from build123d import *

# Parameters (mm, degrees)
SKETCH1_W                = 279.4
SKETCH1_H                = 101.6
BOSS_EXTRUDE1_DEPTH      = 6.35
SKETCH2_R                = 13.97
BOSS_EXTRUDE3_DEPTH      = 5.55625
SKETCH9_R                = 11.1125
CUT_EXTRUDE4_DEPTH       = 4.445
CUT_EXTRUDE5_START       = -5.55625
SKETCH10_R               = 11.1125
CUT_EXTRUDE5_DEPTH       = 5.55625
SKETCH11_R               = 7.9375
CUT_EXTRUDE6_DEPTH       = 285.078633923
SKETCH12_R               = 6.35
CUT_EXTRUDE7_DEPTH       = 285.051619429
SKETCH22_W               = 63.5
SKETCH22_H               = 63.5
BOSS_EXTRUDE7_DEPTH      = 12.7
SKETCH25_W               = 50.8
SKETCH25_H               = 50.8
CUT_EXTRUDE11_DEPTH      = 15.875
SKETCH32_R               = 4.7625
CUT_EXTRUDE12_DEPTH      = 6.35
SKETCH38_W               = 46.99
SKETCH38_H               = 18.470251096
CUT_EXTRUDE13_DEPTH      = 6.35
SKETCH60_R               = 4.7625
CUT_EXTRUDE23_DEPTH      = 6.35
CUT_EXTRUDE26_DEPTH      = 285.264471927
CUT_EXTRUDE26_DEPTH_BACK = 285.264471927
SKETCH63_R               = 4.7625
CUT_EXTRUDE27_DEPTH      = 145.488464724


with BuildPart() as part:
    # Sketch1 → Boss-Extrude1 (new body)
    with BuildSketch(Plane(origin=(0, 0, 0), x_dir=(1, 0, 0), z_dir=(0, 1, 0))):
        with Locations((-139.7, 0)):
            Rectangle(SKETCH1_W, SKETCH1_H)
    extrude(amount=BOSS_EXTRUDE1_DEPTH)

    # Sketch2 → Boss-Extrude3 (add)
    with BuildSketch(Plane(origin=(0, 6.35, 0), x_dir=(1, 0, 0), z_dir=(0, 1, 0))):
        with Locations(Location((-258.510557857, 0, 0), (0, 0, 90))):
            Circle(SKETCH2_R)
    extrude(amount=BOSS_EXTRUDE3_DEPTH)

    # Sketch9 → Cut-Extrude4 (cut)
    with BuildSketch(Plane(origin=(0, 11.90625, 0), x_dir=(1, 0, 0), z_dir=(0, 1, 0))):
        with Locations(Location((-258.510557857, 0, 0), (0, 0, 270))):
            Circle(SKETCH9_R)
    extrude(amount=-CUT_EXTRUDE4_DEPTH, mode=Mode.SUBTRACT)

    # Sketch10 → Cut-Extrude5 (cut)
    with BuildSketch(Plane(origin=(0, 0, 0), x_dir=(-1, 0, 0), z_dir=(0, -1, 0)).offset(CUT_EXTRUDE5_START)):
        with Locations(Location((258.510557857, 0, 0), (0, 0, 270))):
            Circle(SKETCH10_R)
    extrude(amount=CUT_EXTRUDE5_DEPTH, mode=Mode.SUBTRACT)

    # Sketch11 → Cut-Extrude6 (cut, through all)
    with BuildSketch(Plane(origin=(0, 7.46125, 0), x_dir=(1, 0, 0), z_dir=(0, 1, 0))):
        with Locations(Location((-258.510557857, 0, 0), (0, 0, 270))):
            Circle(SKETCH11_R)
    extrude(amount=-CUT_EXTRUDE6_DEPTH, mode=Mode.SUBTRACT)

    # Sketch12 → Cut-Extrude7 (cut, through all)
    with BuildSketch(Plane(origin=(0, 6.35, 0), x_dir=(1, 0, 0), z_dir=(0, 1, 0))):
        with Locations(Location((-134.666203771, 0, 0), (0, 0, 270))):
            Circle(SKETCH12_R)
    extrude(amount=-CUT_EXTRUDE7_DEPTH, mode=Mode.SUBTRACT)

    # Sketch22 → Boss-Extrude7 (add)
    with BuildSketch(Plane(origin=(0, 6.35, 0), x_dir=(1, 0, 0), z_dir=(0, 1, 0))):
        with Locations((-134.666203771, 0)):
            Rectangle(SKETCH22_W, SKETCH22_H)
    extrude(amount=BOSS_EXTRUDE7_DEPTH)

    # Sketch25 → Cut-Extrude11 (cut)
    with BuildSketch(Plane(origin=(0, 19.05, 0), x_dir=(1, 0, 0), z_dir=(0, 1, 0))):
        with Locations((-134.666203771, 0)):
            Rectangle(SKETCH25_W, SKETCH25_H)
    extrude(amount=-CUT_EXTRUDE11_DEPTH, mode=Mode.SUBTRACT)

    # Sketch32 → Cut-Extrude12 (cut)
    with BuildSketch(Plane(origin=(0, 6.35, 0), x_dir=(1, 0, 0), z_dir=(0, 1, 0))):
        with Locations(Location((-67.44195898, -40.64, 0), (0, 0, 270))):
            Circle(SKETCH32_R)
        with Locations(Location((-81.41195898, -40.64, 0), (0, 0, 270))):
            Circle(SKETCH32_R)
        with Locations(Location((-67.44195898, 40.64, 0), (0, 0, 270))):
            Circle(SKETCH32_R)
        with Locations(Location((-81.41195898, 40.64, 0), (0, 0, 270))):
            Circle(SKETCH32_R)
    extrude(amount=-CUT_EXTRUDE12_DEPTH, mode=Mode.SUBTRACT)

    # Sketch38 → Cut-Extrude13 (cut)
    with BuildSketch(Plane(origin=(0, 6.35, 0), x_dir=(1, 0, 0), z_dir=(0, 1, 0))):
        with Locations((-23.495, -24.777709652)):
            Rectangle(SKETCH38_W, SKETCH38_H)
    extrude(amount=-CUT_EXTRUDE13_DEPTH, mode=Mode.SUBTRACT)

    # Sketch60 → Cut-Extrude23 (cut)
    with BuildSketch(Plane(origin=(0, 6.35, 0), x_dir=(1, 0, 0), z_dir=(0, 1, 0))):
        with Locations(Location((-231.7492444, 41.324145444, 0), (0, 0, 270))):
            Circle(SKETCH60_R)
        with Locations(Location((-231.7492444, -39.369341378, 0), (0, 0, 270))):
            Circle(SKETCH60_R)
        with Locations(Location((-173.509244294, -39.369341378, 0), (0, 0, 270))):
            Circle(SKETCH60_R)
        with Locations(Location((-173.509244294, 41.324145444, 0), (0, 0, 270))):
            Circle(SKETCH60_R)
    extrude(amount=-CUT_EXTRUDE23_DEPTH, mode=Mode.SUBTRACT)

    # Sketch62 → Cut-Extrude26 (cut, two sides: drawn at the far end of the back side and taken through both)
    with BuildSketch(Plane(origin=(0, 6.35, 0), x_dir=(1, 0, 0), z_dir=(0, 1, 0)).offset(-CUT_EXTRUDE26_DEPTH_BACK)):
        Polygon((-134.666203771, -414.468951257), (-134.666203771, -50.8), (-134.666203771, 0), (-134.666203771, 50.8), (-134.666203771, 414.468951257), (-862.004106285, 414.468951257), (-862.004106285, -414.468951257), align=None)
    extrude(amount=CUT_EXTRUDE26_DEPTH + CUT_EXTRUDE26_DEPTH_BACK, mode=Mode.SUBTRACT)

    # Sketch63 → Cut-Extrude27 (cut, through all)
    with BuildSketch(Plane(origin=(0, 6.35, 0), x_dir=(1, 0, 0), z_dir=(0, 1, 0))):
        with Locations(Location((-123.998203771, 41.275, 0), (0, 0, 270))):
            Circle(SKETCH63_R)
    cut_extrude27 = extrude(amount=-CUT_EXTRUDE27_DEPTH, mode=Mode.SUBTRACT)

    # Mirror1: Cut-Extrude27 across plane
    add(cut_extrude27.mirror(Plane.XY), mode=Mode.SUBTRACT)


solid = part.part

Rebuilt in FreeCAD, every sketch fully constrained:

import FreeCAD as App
import Part
import Sketcher
Q = App.Units.Quantity


def add_polygon(sketch, points):
    """Adds a closed chain of lines whose ends are joined by coincident constraints."""
    first, n = sketch.GeometryCount, len(points)
    for a, b in zip(points, points[1:] + points[:1]):
        sketch.addGeometry(Part.LineSegment(App.Vector(*a, 0), App.Vector(*b, 0)), False)
    for i in range(n):
        sketch.addConstraint(Sketcher.Constraint("Coincident", first + i, 2, first + (i + 1) % n, 1))

doc = App.newDocument("Part")
params = doc.addObject("Spreadsheet::Sheet", "Params")
for row, (alias, value) in enumerate([
    ("sketch1_width", "11 in"),
    ("sketch1_height", "4 in"),
    ("pad1_length", "0.25 in"),
    ("sketch2_diameter", "1.1 in"),
    ("pad2_length", "0.21875 in"),
    ("sketch3_diameter", "0.875 in"),
    ("pocket1_length", "0.175 in"),
    ("sketch4_diameter", "0.875 in"),
    ("pocket2_length", "0.21875 in"),
    ("sketch5_diameter", "0.625 in"),
    ("sketch6_diameter", "0.5 in"),
    ("sketch7_width", "2.5 in"),
    ("pad3_length", "0.5 in"),
    ("sketch8_width", "2 in"),
    ("pocket5_length", "0.625 in"),
    ("sketch9_diameter", "0.375 in"),
    ("pocket6_length", "0.25 in"),
    ("sketch10_width", "1.85 in"),
    ("pocket7_length", "0.25 in"),
    ("sketch11_diameter", "0.375 in"),
    ("pocket8_length", "0.25 in"),
    ("sketch13_diameter", "0.375 in"),
], start=1):
    params.set(f"A{row}", alias)
    params.set(f"B{row}", "=" + value)
    params.setAlias(f"B{row}", alias)

body = doc.addObject("PartDesign::Body", "Body")

# Sketch on XZ plane
sketch1 = body.newObject("Sketcher::SketchObject", "Sketch")
sketch1.AttachmentSupport = (doc.getObject("XZ_Plane"), [""])
sketch1.MapMode = "FlatFace"
add_polygon(sketch1, [(-279, -51), (-279, 51), (0, 51), (0, -51)])  # lines 0-3
sketch1.addConstraint(Sketcher.Constraint("Vertical", 0))
sketch1.addConstraint(Sketcher.Constraint("Horizontal", 1))
sketch1.addConstraint(Sketcher.Constraint("Vertical", 2))
sketch1.addConstraint(Sketcher.Constraint("Horizontal", 3))
sketch1.addConstraint(Sketcher.Constraint("Symmetric", 1, 2, 2, 2, -1, 1))
sketch1.addConstraint(Sketcher.Constraint("DistanceX", 1, 1, 1, 2, Q("11 in")))
sketch1.addConstraint(Sketcher.Constraint("DistanceY", 0, 1, 0, 2, Q("4 in")))
sketch1.setExpression("Constraints[9]", "Params.sketch1_width")
sketch1.setExpression("Constraints[10]", "Params.sketch1_height")
pad1 = body.newObject("PartDesign::Pad", "Pad")
pad1.Profile = sketch1
pad1.setExpression("Length", "Params.pad1_length")
pad1.Reversed = True

# Sketch on XZ plane
sketch2 = body.newObject("Sketcher::SketchObject", "Sketch001")
sketch2.AttachmentSupport = (doc.getObject("XZ_Plane"), [""])
sketch2.MapMode = "FlatFace"
sketch2.AttachmentOffset = App.Placement(App.Vector(0, 0, -0.25 * 25.4), App.Rotation())
sketch2.addGeometry(Part.Circle(App.Vector(-259, 0, 0), App.Vector(0, 0, 1), 14), False)
sketch2.addConstraint(Sketcher.Constraint("PointOnObject", 0, 3, -1))
sketch2.addConstraint(Sketcher.Constraint("Diameter", 0, Q("1.1 in")))
sketch2.addConstraint(Sketcher.Constraint("DistanceX", 0, 3, -1, 1, Q("258.510558 mm")))
sketch2.setExpression("Constraints[1]", "Params.sketch2_diameter")
pad2 = body.newObject("PartDesign::Pad", "Pad001")
pad2.Profile = sketch2
pad2.setExpression("Length", "Params.pad2_length")
pad2.Reversed = True

# Sketch on XZ plane
sketch3 = body.newObject("Sketcher::SketchObject", "Sketch002")
sketch3.AttachmentSupport = (doc.getObject("XZ_Plane"), [""])
sketch3.MapMode = "FlatFace"
sketch3.AttachmentOffset = App.Placement(App.Vector(0, 0, -0.46875 * 25.4), App.Rotation())
sketch3.addGeometry(Part.Circle(App.Vector(-259, 0, 0), App.Vector(0, 0, 1), 11), False)
sketch3.addConstraint(Sketcher.Constraint("PointOnObject", 0, 3, -1))
sketch3.addConstraint(Sketcher.Constraint("Diameter", 0, Q("0.875 in")))
sketch3.addConstraint(Sketcher.Constraint("DistanceX", 0, 3, -1, 1, Q("258.510558 mm")))
sketch3.setExpression("Constraints[1]", "Params.sketch3_diameter")
pocket1 = body.newObject("PartDesign::Pocket", "Pocket")
pocket1.Profile = sketch3
pocket1.setExpression("Length", "Params.pocket1_length")
pocket1.Reversed = True

# Sketch on XZ plane
sketch4 = body.newObject("Sketcher::SketchObject", "Sketch003")
sketch4.AttachmentSupport = (doc.getObject("XZ_Plane"), [""])
sketch4.MapMode = "FlatFace"
sketch4.AttachmentOffset = App.Placement(App.Vector(0, 0, -0.21875 * 25.4), App.Rotation())
sketch4.addGeometry(Part.Circle(App.Vector(-259, 0, 0), App.Vector(0, 0, 1), 11), False)
sketch4.addConstraint(Sketcher.Constraint("PointOnObject", 0, 3, -1))
sketch4.addConstraint(Sketcher.Constraint("Diameter", 0, Q("0.875 in")))
sketch4.addConstraint(Sketcher.Constraint("DistanceX", 0, 3, -1, 1, Q("258.510558 mm")))
sketch4.setExpression("Constraints[1]", "Params.sketch4_diameter")
pocket2 = body.newObject("PartDesign::Pocket", "Pocket001")
pocket2.Profile = sketch4
pocket2.setExpression("Length", "Params.pocket2_length")
pocket2.Reversed = True

# Sketch on XZ plane
sketch5 = body.newObject("Sketcher::SketchObject", "Sketch004")
sketch5.AttachmentSupport = (doc.getObject("XZ_Plane"), [""])
sketch5.MapMode = "FlatFace"
sketch5.AttachmentOffset = App.Placement(App.Vector(0, 0, -7.46125), App.Rotation())
sketch5.addGeometry(Part.Circle(App.Vector(-259, 0, 0), App.Vector(0, 0, 1), 8), False)
sketch5.addConstraint(Sketcher.Constraint("PointOnObject", 0, 3, -1))
sketch5.addConstraint(Sketcher.Constraint("Diameter", 0, Q("0.625 in")))
sketch5.addConstraint(Sketcher.Constraint("DistanceX", 0, 3, -1, 1, Q("258.510558 mm")))
sketch5.setExpression("Constraints[1]", "Params.sketch5_diameter")
pocket3 = body.newObject("PartDesign::Pocket", "Pocket002")
pocket3.Profile = sketch5
pocket3.Type = "ThroughAll"
pocket3.Reversed = True

# Sketch on XZ plane
sketch6 = body.newObject("Sketcher::SketchObject", "Sketch005")
sketch6.AttachmentSupport = (doc.getObject("XZ_Plane"), [""])
sketch6.MapMode = "FlatFace"
sketch6.AttachmentOffset = App.Placement(App.Vector(0, 0, -0.25 * 25.4), App.Rotation())
sketch6.addGeometry(Part.Circle(App.Vector(-135, 0, 0), App.Vector(0, 0, 1), 6), False)
sketch6.addConstraint(Sketcher.Constraint("PointOnObject", 0, 3, -1))
sketch6.addConstraint(Sketcher.Constraint("Diameter", 0, Q("0.5 in")))
sketch6.addConstraint(Sketcher.Constraint("DistanceX", 0, 3, -1, 1, Q("134.666204 mm")))
sketch6.setExpression("Constraints[1]", "Params.sketch6_diameter")
pocket4 = body.newObject("PartDesign::Pocket", "Pocket003")
pocket4.Profile = sketch6
pocket4.Type = "ThroughAll"
pocket4.Reversed = True

# Sketch on XZ plane
sketch7 = body.newObject("Sketcher::SketchObject", "Sketch006")
sketch7.AttachmentSupport = (doc.getObject("XZ_Plane"), [""])
sketch7.MapMode = "FlatFace"
sketch7.AttachmentOffset = App.Placement(App.Vector(0, 0, -0.25 * 25.4), App.Rotation())
add_polygon(sketch7, [(-166, -32), (-166, 32), (-103, 32), (-103, -32)])  # lines 0-3
sketch7.addConstraint(Sketcher.Constraint("Vertical", 0))
sketch7.addConstraint(Sketcher.Constraint("Horizontal", 1))
sketch7.addConstraint(Sketcher.Constraint("Vertical", 2))
sketch7.addConstraint(Sketcher.Constraint("Horizontal", 3))
sketch7.addConstraint(Sketcher.Constraint("Equal", 3, 0))
sketch7.addConstraint(Sketcher.Constraint("DistanceX", 1, 1, 1, 2, Q("2.5 in")))
sketch7.addConstraint(Sketcher.Constraint("DistanceY", -1, 1, 0, 2, Q("1.25 in")))
sketch7.addConstraint(Sketcher.Constraint("DistanceX", 0, 2, -1, 1, Q("166.416204 mm")))
sketch7.setExpression("Constraints[9]", "Params.sketch7_width")
pad3 = body.newObject("PartDesign::Pad", "Pad002")
pad3.Profile = sketch7
pad3.setExpression("Length", "Params.pad3_length")
pad3.Reversed = True

# Sketch on XZ plane
sketch8 = body.newObject("Sketcher::SketchObject", "Sketch007")
sketch8.AttachmentSupport = (doc.getObject("XZ_Plane"), [""])
sketch8.MapMode = "FlatFace"
sketch8.AttachmentOffset = App.Placement(App.Vector(0, 0, -0.75 * 25.4), App.Rotation())
add_polygon(sketch8, [(-160, -25), (-160, 25), (-109, 25), (-109, -25)])  # lines 0-3
sketch8.addConstraint(Sketcher.Constraint("Vertical", 0))
sketch8.addConstraint(Sketcher.Constraint("Horizontal", 1))
sketch8.addConstraint(Sketcher.Constraint("Vertical", 2))
sketch8.addConstraint(Sketcher.Constraint("Horizontal", 3))
sketch8.addConstraint(Sketcher.Constraint("Equal", 3, 0))
sketch8.addConstraint(Sketcher.Constraint("DistanceX", 1, 1, 1, 2, Q("2 in")))
sketch8.addConstraint(Sketcher.Constraint("DistanceY", -1, 1, 0, 2, Q("1 in")))
sketch8.addConstraint(Sketcher.Constraint("DistanceX", 0, 2, -1, 1, Q("160.066204 mm")))
sketch8.setExpression("Constraints[9]", "Params.sketch8_width")
pocket5 = body.newObject("PartDesign::Pocket", "Pocket004")
pocket5.Profile = sketch8
pocket5.setExpression("Length", "Params.pocket5_length")
pocket5.Reversed = True

# Sketch on XZ plane
sketch9 = body.newObject("Sketcher::SketchObject", "Sketch008")
sketch9.AttachmentSupport = (doc.getObject("XZ_Plane"), [""])
sketch9.MapMode = "FlatFace"
sketch9.AttachmentOffset = App.Placement(App.Vector(0, 0, -0.25 * 25.4), App.Rotation())
sketch9.addGeometry(Part.Circle(App.Vector(-67.4, 40.6, 0), App.Vector(0, 0, 1), 4.8), False)
sketch9.addGeometry(Part.Circle(App.Vector(-81.4, 40.6, 0), App.Vector(0, 0, 1), 4.8), False)
sketch9.addGeometry(Part.Circle(App.Vector(-67.4, -40.6, 0), App.Vector(0, 0, 1), 4.8), False)
sketch9.addGeometry(Part.Circle(App.Vector(-81.4, -40.6, 0), App.Vector(0, 0, 1), 4.8), False)
sketch9.addConstraint(Sketcher.Constraint("Equal", 0, 1))
sketch9.addConstraint(Sketcher.Constraint("Equal", 1, 2))
sketch9.addConstraint(Sketcher.Constraint("Equal", 2, 3))
sketch9.addConstraint(Sketcher.Constraint("Symmetric", 0, 3, 2, 3, -1))
sketch9.addConstraint(Sketcher.Constraint("Symmetric", 1, 3, 3, 3, -1))
sketch9.addConstraint(Sketcher.Constraint("Horizontal", 0, 3, 1, 3))
sketch9.addConstraint(Sketcher.Constraint("Diameter", 0, Q("0.375 in")))
sketch9.addConstraint(Sketcher.Constraint("DistanceY", -1, 1, 0, 3, Q("1.6 in")))
sketch9.addConstraint(Sketcher.Constraint("DistanceX", 1, 3, 0, 3, Q("0.55 in")))
sketch9.addConstraint(Sketcher.Constraint("DistanceX", 0, 3, -1, 1, Q("67.441959 mm")))
sketch9.setExpression("Constraints[6]", "Params.sketch9_diameter")
pocket6 = body.newObject("PartDesign::Pocket", "Pocket005")
pocket6.Profile = sketch9
pocket6.setExpression("Length", "Params.pocket6_length")
pocket6.Reversed = True

# Sketch on XZ plane
sketch10 = body.newObject("Sketcher::SketchObject", "Sketch009")
sketch10.AttachmentSupport = (doc.getObject("XZ_Plane"), [""])
sketch10.MapMode = "FlatFace"
sketch10.AttachmentOffset = App.Placement(App.Vector(0, 0, -0.25 * 25.4), App.Rotation())
add_polygon(sketch10, [(-47, 16), (-47, 34), (0, 34), (0, 16)])  # lines 0-3
sketch10.addConstraint(Sketcher.Constraint("Vertical", 0))
sketch10.addConstraint(Sketcher.Constraint("Horizontal", 1))
sketch10.addConstraint(Sketcher.Constraint("Vertical", 2))
sketch10.addConstraint(Sketcher.Constraint("Horizontal", 3))
sketch10.addConstraint(Sketcher.Constraint("PointOnObject", 1, 2, -2))
sketch10.addConstraint(Sketcher.Constraint("DistanceX", 1, 1, 1, 2, Q("1.85 in")))
sketch10.addConstraint(Sketcher.Constraint("DistanceY", 0, 1, 0, 2, Q("18.470251 mm")))
sketch10.addConstraint(Sketcher.Constraint("DistanceY", -1, 1, 0, 2, Q("34.012835 mm")))
sketch10.setExpression("Constraints[9]", "Params.sketch10_width")
pocket7 = body.newObject("PartDesign::Pocket", "Pocket006")
pocket7.Profile = sketch10
pocket7.setExpression("Length", "Params.pocket7_length")
pocket7.Reversed = True

# Sketch on XZ plane
sketch11 = body.newObject("Sketcher::SketchObject", "Sketch010")
sketch11.AttachmentSupport = (doc.getObject("XZ_Plane"), [""])
sketch11.MapMode = "FlatFace"
sketch11.AttachmentOffset = App.Placement(App.Vector(0, 0, -0.25 * 25.4), App.Rotation())
sketch11.addGeometry(Part.Circle(App.Vector(-231.7, -41.3, 0), App.Vector(0, 0, 1), 4.8), False)
sketch11.addGeometry(Part.Circle(App.Vector(-231.7, 39.4, 0), App.Vector(0, 0, 1), 4.8), False)
sketch11.addGeometry(Part.Circle(App.Vector(-173.5, 39.4, 0), App.Vector(0, 0, 1), 4.8), False)
sketch11.addGeometry(Part.Circle(App.Vector(-173.5, -41.3, 0), App.Vector(0, 0, 1), 4.8), False)
sketch11.addConstraint(Sketcher.Constraint("Equal", 0, 1))
sketch11.addConstraint(Sketcher.Constraint("Equal", 1, 2))
sketch11.addConstraint(Sketcher.Constraint("Equal", 2, 3))
sketch11.addConstraint(Sketcher.Constraint("Horizontal", 1, 3, 2, 3))
sketch11.addConstraint(Sketcher.Constraint("Horizontal", 0, 3, 3, 3))
sketch11.addConstraint(Sketcher.Constraint("Vertical", 0, 3, 1, 3))
sketch11.addConstraint(Sketcher.Constraint("Vertical", 2, 3, 3, 3))
sketch11.addConstraint(Sketcher.Constraint("Diameter", 0, Q("0.375 in")))
sketch11.addConstraint(Sketcher.Constraint("DistanceX", 1, 3, 2, 3, Q("58.24 mm")))
sketch11.addConstraint(Sketcher.Constraint("DistanceY", -1, 1, 1, 3, Q("39.369341 mm")))
sketch11.addConstraint(Sketcher.Constraint("DistanceX", 0, 3, -1, 1, Q("231.749244 mm")))
sketch11.addConstraint(Sketcher.Constraint("DistanceY", 0, 3, -1, 1, Q("41.324145 mm")))
sketch11.setExpression("Constraints[7]", "Params.sketch11_diameter")
pocket8 = body.newObject("PartDesign::Pocket", "Pocket007")
pocket8.Profile = sketch11
pocket8.setExpression("Length", "Params.pocket8_length")
pocket8.Reversed = True

# Sketch on XZ plane
sketch12 = body.newObject("Sketcher::SketchObject", "Sketch011")
sketch12.AttachmentSupport = (doc.getObject("XZ_Plane"), [""])
sketch12.MapMode = "FlatFace"
sketch12.AttachmentOffset = App.Placement(App.Vector(0, 0, -0.25 * 25.4), App.Rotation())
add_polygon(sketch12, [(-135, 414), (-135, -414), (-862, -414), (-862, 414)])  # lines 0-3
sketch12.addConstraint(Sketcher.Constraint("Vertical", 0))
sketch12.addConstraint(Sketcher.Constraint("Horizontal", 1))
sketch12.addConstraint(Sketcher.Constraint("Vertical", 2))
sketch12.addConstraint(Sketcher.Constraint("Horizontal", 3))
sketch12.addConstraint(Sketcher.Constraint("DistanceX", 1, 2, 1, 1, Q("727.337903 mm")))
sketch12.addConstraint(Sketcher.Constraint("DistanceY", 0, 2, 0, 1, Q("828.937903 mm")))
sketch12.addConstraint(Sketcher.Constraint("DistanceY", 0, 2, -1, 1, Q("414.468951 mm")))
sketch12.addConstraint(Sketcher.Constraint("DistanceX", 0, 2, -1, 1, Q("134.666204 mm")))
pocket9 = body.newObject("PartDesign::Pocket", "Pocket008")
pocket9.Profile = sketch12
pocket9.Type = "ThroughAll"
pocket9.Midplane = True

# Sketch on XZ plane
sketch13 = body.newObject("Sketcher::SketchObject", "Sketch012")
sketch13.AttachmentSupport = (doc.getObject("XZ_Plane"), [""])
sketch13.MapMode = "FlatFace"
sketch13.AttachmentOffset = App.Placement(App.Vector(0, 0, -0.25 * 25.4), App.Rotation())
sketch13.addGeometry(Part.Circle(App.Vector(-124, -41.3, 0), App.Vector(0, 0, 1), 4.8), False)
sketch13.addConstraint(Sketcher.Constraint("Diameter", 0, Q("0.375 in")))
sketch13.addConstraint(Sketcher.Constraint("DistanceY", 0, 3, -1, 1, Q("1.625 in")))
sketch13.addConstraint(Sketcher.Constraint("DistanceX", 0, 3, -1, 1, Q("123.998204 mm")))
sketch13.setExpression("Constraints[0]", "Params.sketch13_diameter")
pocket10 = body.newObject("PartDesign::Pocket", "Pocket009")
pocket10.Profile = sketch13
pocket10.Type = "ThroughAll"
pocket10.Reversed = True
doc.recompute()

mirrored = body.newObject("PartDesign::Mirrored", "Mirrored")
mirrored.Originals = [pocket10]
mirrored.MirrorPlane = (doc.getObject("XY_Plane"), [""])
body.Tip = mirrored

doc.recompute()
